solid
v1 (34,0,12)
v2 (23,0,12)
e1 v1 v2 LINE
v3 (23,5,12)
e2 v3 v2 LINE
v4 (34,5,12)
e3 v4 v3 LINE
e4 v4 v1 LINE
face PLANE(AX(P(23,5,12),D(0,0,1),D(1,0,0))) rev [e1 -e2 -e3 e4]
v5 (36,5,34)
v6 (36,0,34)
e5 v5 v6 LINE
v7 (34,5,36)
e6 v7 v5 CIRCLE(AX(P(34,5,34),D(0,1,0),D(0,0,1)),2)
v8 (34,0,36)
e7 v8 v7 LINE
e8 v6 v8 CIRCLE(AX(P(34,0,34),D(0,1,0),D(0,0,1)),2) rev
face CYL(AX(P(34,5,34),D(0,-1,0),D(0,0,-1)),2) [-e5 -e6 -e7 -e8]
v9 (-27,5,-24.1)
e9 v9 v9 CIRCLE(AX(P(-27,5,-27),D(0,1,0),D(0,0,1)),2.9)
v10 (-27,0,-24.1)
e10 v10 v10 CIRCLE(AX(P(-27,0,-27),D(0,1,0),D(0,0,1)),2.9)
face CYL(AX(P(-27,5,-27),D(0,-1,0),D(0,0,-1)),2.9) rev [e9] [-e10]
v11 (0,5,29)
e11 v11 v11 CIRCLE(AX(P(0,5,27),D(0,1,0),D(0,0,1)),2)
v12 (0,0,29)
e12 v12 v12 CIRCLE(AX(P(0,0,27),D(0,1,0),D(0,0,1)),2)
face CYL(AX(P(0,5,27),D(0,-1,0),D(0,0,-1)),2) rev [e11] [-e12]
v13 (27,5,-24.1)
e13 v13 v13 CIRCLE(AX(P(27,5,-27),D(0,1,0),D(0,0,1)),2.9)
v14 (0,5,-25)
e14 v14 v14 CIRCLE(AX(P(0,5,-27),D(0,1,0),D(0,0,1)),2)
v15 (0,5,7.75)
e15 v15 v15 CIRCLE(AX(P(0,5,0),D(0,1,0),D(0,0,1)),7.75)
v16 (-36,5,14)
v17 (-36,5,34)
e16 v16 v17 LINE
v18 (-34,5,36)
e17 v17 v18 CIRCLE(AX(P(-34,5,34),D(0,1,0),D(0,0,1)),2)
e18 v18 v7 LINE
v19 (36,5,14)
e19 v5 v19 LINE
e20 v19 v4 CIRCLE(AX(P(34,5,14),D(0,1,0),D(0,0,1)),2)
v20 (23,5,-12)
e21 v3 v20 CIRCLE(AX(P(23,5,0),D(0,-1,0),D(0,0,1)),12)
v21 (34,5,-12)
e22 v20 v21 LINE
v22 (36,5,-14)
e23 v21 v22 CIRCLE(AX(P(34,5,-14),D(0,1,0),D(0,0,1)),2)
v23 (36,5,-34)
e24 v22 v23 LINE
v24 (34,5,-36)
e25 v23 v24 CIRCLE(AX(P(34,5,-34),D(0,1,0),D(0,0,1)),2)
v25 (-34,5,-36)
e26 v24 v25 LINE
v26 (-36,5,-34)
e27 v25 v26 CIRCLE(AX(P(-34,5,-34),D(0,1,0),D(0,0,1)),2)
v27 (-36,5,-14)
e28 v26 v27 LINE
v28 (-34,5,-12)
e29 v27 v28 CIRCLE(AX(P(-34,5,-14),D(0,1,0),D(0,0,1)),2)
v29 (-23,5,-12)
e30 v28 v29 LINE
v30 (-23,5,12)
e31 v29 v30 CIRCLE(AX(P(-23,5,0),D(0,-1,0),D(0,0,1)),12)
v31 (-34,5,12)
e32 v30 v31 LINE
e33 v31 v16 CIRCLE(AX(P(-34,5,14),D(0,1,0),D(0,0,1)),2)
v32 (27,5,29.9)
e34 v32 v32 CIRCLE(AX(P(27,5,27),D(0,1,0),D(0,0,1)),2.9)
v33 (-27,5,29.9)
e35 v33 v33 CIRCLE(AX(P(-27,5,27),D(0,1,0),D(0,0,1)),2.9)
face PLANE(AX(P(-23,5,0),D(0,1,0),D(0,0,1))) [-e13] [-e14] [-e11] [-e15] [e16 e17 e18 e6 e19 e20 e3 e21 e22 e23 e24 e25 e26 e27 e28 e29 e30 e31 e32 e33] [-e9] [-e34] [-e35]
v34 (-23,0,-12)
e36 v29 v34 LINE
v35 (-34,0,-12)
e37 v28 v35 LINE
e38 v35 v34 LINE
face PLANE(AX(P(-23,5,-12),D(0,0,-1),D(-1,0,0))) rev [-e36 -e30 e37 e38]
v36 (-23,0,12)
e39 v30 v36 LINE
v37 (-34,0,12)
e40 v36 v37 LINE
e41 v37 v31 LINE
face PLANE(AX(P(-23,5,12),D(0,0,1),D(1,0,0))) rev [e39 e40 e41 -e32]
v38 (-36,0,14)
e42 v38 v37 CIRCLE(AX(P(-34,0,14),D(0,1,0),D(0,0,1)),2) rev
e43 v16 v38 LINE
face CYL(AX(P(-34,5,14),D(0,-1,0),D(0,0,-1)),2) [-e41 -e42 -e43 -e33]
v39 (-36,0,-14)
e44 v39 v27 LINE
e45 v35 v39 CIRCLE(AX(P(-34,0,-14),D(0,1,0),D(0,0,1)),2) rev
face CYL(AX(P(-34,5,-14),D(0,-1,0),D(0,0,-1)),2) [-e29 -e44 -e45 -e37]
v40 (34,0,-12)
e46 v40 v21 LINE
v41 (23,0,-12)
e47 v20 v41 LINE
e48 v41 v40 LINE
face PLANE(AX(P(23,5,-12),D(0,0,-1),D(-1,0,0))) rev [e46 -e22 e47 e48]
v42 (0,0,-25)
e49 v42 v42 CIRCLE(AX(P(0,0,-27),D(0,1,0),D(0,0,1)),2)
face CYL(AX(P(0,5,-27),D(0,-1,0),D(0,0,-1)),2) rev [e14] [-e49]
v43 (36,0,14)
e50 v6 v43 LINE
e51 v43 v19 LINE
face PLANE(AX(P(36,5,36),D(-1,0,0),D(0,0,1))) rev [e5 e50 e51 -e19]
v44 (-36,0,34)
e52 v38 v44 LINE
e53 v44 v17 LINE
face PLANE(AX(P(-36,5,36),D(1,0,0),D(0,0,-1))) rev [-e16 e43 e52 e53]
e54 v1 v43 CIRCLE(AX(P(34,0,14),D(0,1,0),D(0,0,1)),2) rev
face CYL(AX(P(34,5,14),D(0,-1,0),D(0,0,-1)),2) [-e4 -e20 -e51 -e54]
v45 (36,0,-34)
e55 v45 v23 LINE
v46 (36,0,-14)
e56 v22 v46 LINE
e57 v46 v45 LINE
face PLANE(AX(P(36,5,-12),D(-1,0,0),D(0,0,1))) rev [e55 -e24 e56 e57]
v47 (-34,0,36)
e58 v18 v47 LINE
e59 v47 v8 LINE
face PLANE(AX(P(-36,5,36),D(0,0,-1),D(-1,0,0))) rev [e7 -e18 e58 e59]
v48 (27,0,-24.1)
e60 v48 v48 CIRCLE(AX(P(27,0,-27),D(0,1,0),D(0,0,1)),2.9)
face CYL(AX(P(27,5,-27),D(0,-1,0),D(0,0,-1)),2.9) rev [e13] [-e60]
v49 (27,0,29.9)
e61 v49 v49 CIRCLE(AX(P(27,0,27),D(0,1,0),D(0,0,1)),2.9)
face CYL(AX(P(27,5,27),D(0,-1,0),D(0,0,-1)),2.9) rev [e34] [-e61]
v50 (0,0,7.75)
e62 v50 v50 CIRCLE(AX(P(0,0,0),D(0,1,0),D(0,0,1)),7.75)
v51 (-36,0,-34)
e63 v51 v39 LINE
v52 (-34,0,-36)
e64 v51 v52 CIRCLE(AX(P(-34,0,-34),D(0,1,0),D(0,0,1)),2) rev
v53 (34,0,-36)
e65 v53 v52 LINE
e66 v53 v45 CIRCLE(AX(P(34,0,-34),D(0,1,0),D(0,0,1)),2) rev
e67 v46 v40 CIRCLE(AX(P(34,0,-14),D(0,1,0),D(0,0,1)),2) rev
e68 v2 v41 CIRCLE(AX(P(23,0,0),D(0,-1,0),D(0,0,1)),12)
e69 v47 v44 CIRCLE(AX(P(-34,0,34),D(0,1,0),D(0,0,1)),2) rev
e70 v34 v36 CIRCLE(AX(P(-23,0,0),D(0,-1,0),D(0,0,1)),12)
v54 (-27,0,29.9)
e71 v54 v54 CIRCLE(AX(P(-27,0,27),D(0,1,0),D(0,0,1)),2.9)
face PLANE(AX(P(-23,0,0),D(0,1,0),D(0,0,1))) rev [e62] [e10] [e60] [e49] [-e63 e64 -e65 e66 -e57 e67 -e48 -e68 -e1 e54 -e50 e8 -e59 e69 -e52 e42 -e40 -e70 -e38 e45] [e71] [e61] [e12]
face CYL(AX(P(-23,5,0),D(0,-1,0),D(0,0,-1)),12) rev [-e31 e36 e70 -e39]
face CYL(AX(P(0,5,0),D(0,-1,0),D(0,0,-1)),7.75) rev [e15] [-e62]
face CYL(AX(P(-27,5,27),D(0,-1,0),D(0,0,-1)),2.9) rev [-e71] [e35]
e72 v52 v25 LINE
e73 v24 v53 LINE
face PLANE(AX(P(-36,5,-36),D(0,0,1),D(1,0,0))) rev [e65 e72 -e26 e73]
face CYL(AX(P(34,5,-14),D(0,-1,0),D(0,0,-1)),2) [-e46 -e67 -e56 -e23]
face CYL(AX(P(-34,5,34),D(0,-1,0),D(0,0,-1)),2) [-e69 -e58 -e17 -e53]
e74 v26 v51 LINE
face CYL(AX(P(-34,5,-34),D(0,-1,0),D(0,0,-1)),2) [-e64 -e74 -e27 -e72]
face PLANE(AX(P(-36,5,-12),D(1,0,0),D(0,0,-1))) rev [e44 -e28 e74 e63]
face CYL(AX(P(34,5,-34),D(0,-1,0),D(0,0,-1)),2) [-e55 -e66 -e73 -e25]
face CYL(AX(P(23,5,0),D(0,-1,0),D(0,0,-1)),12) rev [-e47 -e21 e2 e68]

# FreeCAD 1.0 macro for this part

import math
import FreeCAD as App
import Part
import Sketcher
Q = App.Units.Quantity


def edges_at(feature, points):
    """Names of the edges that pass closest to the given points."""
    edges = feature.Shape.Edges
    near = lambda p: min(range(len(edges)), key=lambda i: edges[i].distToShape(Part.Vertex(*p))[0])
    return sorted({f"Edge{near(p) + 1}" for p in points})

doc = App.newDocument("Part")
body = doc.addObject("PartDesign::Body", "Body")

# Sketch on XZ plane
sketch1 = body.newObject("Sketcher::SketchObject", "Sketch")
sketch1.AttachmentSupport = (doc.getObject("XZ_Plane"), [""])
sketch1.MapMode = "FlatFace"
sketch1.addGeometry(Part.LineSegment(App.Vector(-36, -36, 0), App.Vector(-36, -12, 0)), False)
sketch1.addGeometry(Part.LineSegment(App.Vector(-36, -12, 0), App.Vector(-23, -12, 0)), False)
sketch1.addGeometry(Part.ArcOfCircle(Part.Circle(App.Vector(-23, 0, 0), App.Vector(0, 0, 1), 12), math.radians(-90), math.radians(90)), False)
sketch1.addGeometry(Part.LineSegment(App.Vector(-23, 12, 0), App.Vector(-36, 12, 0)), False)
sketch1.addGeometry(Part.LineSegment(App.Vector(-36, 12, 0), App.Vector(-36, 36, 0)), False)
sketch1.addGeometry(Part.LineSegment(App.Vector(-36, 36, 0), App.Vector(36, 36, 0)), False)
sketch1.addGeometry(Part.LineSegment(App.Vector(36, 36, 0), App.Vector(36, 12, 0)), False)
sketch1.addGeometry(Part.LineSegment(App.Vector(36, 12, 0), App.Vector(23, 12, 0)), False)
sketch1.addGeometry(Part.ArcOfCircle(Part.Circle(App.Vector(23, 0, 0), App.Vector(0, 0, 1), 12), math.radians(90), math.radians(270)), False)
sketch1.addGeometry(Part.LineSegment(App.Vector(23, -12, 0), App.Vector(36, -12, 0)), False)
sketch1.addGeometry(Part.LineSegment(App.Vector(36, -12, 0), App.Vector(36, -36, 0)), False)
sketch1.addGeometry(Part.LineSegment(App.Vector(36, -36, 0), App.Vector(-36, -36, 0)), False)
sketch1.addGeometry(Part.Circle(App.Vector(27, 27, 0), App.Vector(0, 0, 1), 2.9), False)
sketch1.addGeometry(Part.Circle(App.Vector(0, 27, 0), App.Vector(0, 0, 1), 2), False)
sketch1.addGeometry(Part.Circle(App.Vector(0, 0, 0), App.Vector(0, 0, 1), 7.8), False)
sketch1.addGeometry(Part.Circle(App.Vector(-27, 27, 0), App.Vector(0, 0, 1), 2.9), False)
sketch1.addGeometry(Part.Circle(App.Vector(27, -27, 0), App.Vector(0, 0, 1), 2.9), False)
sketch1.addGeometry(Part.Circle(App.Vector(0, -27, 0), App.Vector(0, 0, 1), 2), False)
sketch1.addGeometry(Part.Circle(App.Vector(-27, -27, 0), App.Vector(0, 0, 1), 2.9), False)
sketch1.addConstraint(Sketcher.Constraint("Coincident", 0, 2, 1, 1))
sketch1.addConstraint(Sketcher.Constraint("Tangent", 1, 2, 2, 1))
sketch1.addConstraint(Sketcher.Constraint("Tangent", 2, 2, 3, 1))
sketch1.addConstraint(Sketcher.Constraint("Coincident", 3, 2, 4, 1))
sketch1.addConstraint(Sketcher.Constraint("Coincident", 4, 2, 5, 1))
sketch1.addConstraint(Sketcher.Constraint("Coincident", 5, 2, 6, 1))
sketch1.addConstraint(Sketcher.Constraint("Coincident", 6, 2, 7, 1))
sketch1.addConstraint(Sketcher.Constraint("Tangent", 7, 2, 8, 1))
sketch1.addConstraint(Sketcher.Constraint("Tangent", 8, 2, 9, 1))
sketch1.addConstraint(Sketcher.Constraint("Coincident", 9, 2, 10, 1))
sketch1.addConstraint(Sketcher.Constraint("Coincident", 10, 2, 11, 1))
sketch1.addConstraint(Sketcher.Constraint("Coincident", 11, 2, 0, 1))
sketch1.addConstraint(Sketcher.Constraint("Vertical", 0))
sketch1.addConstraint(Sketcher.Constraint("Horizontal", 1))
sketch1.addConstraint(Sketcher.Constraint("Horizontal", 3))
sketch1.addConstraint(Sketcher.Constraint("Vertical", 4))
sketch1.addConstraint(Sketcher.Constraint("Horizontal", 5))
sketch1.addConstraint(Sketcher.Constraint("Vertical", 6))
sketch1.addConstraint(Sketcher.Constraint("Horizontal", 7))
sketch1.addConstraint(Sketcher.Constraint("Horizontal", 9))
sketch1.addConstraint(Sketcher.Constraint("Vertical", 10))
sketch1.addConstraint(Sketcher.Constraint("Horizontal", 11))
sketch1.addConstraint(Sketcher.Constraint("Coincident", 14, 3, -1, 1))
sketch1.addConstraint(Sketcher.Constraint("Equal", 2, 8))
sketch1.addConstraint(Sketcher.Constraint("Equal", 12, 15))
sketch1.addConstraint(Sketcher.Constraint("Equal", 15, 16))
sketch1.addConstraint(Sketcher.Constraint("Equal", 13, 17))
sketch1.addConstraint(Sketcher.Constraint("Equal", 16, 18))
sketch1.addConstraint(Sketcher.Constraint("Symmetric", 2, 3, 8, 3, -1, 1))
sketch1.addConstraint(Sketcher.Constraint("Symmetric", 15, 3, 16, 3, -1, 1))
sketch1.addConstraint(Sketcher.Constraint("Symmetric", 13, 3, 17, 3, -1, 1))
sketch1.addConstraint(Sketcher.Constraint("Symmetric", 12, 3, 18, 3, -1, 1))
sketch1.addConstraint(Sketcher.Constraint("Symmetric", 4, 2, 10, 2, -1, 1))
sketch1.addConstraint(Sketcher.Constraint("Symmetric", 12, 3, 15, 3, -2))
sketch1.addConstraint(Sketcher.Constraint("Symmetric", 3, 2, 6, 2, -2))
sketch1.addConstraint(Sketcher.Constraint("PointOnObject", 13, 3, -2))
sketch1.addConstraint(Sketcher.Constraint("Horizontal", 12, 3, 13, 3))
sketch1.addConstraint(Sketcher.Constraint("Vertical", 0, 2, 3, 2))
sketch1.addConstraint(Sketcher.Constraint("Diameter", 13, Q("4 mm")))
sketch1.addConstraint(Sketcher.Constraint("Radius", 2, Q("12 mm")))
sketch1.addConstraint(Sketcher.Constraint("Diameter", 12, Q("5.8 mm")))
sketch1.addConstraint(Sketcher.Constraint("Diameter", 14, Q("15.5 mm")))
sketch1.addConstraint(Sketcher.Constraint("DistanceX", 1, 1, 1, 2, Q("13 mm")))
sketch1.addConstraint(Sketcher.Constraint("DistanceX", 5, 1, 5, 2, Q("72 mm")))
sketch1.addConstraint(Sketcher.Constraint("DistanceY", 0, 1, 0, 2, Q("24 mm")))
sketch1.addConstraint(Sketcher.Constraint("DistanceX", -1, 1, 12, 3, Q("27 mm")))
sketch1.addConstraint(Sketcher.Constraint("DistanceY", -1, 1, 12, 3, Q("27 mm")))
pad1 = body.newObject("PartDesign::Pad", "Pad")
pad1.Profile = sketch1
pad1.Length = 5
pad1.Reversed = True
doc.recompute()

fillet = body.newObject("PartDesign::Fillet", "Fillet")
fillet.Base = (pad1, edges_at(pad1, [
    (36, 2.5, 36),
    (-36, 2.5, 36),
    (-36, 2.5, -36),
    (36, 2.5, -36),
]))
fillet.Radius = 2
doc.recompute()

fillet2 = body.newObject("PartDesign::Fillet", "Fillet001")
fillet2.Base = (fillet, edges_at(fillet, [
    (36, 2.5, -12),
    (36, 2.5, 12),
    (-36, 2.5, 12),
    (-36, 2.5, -12),
]))
fillet2.Radius = 2

doc.recompute()
